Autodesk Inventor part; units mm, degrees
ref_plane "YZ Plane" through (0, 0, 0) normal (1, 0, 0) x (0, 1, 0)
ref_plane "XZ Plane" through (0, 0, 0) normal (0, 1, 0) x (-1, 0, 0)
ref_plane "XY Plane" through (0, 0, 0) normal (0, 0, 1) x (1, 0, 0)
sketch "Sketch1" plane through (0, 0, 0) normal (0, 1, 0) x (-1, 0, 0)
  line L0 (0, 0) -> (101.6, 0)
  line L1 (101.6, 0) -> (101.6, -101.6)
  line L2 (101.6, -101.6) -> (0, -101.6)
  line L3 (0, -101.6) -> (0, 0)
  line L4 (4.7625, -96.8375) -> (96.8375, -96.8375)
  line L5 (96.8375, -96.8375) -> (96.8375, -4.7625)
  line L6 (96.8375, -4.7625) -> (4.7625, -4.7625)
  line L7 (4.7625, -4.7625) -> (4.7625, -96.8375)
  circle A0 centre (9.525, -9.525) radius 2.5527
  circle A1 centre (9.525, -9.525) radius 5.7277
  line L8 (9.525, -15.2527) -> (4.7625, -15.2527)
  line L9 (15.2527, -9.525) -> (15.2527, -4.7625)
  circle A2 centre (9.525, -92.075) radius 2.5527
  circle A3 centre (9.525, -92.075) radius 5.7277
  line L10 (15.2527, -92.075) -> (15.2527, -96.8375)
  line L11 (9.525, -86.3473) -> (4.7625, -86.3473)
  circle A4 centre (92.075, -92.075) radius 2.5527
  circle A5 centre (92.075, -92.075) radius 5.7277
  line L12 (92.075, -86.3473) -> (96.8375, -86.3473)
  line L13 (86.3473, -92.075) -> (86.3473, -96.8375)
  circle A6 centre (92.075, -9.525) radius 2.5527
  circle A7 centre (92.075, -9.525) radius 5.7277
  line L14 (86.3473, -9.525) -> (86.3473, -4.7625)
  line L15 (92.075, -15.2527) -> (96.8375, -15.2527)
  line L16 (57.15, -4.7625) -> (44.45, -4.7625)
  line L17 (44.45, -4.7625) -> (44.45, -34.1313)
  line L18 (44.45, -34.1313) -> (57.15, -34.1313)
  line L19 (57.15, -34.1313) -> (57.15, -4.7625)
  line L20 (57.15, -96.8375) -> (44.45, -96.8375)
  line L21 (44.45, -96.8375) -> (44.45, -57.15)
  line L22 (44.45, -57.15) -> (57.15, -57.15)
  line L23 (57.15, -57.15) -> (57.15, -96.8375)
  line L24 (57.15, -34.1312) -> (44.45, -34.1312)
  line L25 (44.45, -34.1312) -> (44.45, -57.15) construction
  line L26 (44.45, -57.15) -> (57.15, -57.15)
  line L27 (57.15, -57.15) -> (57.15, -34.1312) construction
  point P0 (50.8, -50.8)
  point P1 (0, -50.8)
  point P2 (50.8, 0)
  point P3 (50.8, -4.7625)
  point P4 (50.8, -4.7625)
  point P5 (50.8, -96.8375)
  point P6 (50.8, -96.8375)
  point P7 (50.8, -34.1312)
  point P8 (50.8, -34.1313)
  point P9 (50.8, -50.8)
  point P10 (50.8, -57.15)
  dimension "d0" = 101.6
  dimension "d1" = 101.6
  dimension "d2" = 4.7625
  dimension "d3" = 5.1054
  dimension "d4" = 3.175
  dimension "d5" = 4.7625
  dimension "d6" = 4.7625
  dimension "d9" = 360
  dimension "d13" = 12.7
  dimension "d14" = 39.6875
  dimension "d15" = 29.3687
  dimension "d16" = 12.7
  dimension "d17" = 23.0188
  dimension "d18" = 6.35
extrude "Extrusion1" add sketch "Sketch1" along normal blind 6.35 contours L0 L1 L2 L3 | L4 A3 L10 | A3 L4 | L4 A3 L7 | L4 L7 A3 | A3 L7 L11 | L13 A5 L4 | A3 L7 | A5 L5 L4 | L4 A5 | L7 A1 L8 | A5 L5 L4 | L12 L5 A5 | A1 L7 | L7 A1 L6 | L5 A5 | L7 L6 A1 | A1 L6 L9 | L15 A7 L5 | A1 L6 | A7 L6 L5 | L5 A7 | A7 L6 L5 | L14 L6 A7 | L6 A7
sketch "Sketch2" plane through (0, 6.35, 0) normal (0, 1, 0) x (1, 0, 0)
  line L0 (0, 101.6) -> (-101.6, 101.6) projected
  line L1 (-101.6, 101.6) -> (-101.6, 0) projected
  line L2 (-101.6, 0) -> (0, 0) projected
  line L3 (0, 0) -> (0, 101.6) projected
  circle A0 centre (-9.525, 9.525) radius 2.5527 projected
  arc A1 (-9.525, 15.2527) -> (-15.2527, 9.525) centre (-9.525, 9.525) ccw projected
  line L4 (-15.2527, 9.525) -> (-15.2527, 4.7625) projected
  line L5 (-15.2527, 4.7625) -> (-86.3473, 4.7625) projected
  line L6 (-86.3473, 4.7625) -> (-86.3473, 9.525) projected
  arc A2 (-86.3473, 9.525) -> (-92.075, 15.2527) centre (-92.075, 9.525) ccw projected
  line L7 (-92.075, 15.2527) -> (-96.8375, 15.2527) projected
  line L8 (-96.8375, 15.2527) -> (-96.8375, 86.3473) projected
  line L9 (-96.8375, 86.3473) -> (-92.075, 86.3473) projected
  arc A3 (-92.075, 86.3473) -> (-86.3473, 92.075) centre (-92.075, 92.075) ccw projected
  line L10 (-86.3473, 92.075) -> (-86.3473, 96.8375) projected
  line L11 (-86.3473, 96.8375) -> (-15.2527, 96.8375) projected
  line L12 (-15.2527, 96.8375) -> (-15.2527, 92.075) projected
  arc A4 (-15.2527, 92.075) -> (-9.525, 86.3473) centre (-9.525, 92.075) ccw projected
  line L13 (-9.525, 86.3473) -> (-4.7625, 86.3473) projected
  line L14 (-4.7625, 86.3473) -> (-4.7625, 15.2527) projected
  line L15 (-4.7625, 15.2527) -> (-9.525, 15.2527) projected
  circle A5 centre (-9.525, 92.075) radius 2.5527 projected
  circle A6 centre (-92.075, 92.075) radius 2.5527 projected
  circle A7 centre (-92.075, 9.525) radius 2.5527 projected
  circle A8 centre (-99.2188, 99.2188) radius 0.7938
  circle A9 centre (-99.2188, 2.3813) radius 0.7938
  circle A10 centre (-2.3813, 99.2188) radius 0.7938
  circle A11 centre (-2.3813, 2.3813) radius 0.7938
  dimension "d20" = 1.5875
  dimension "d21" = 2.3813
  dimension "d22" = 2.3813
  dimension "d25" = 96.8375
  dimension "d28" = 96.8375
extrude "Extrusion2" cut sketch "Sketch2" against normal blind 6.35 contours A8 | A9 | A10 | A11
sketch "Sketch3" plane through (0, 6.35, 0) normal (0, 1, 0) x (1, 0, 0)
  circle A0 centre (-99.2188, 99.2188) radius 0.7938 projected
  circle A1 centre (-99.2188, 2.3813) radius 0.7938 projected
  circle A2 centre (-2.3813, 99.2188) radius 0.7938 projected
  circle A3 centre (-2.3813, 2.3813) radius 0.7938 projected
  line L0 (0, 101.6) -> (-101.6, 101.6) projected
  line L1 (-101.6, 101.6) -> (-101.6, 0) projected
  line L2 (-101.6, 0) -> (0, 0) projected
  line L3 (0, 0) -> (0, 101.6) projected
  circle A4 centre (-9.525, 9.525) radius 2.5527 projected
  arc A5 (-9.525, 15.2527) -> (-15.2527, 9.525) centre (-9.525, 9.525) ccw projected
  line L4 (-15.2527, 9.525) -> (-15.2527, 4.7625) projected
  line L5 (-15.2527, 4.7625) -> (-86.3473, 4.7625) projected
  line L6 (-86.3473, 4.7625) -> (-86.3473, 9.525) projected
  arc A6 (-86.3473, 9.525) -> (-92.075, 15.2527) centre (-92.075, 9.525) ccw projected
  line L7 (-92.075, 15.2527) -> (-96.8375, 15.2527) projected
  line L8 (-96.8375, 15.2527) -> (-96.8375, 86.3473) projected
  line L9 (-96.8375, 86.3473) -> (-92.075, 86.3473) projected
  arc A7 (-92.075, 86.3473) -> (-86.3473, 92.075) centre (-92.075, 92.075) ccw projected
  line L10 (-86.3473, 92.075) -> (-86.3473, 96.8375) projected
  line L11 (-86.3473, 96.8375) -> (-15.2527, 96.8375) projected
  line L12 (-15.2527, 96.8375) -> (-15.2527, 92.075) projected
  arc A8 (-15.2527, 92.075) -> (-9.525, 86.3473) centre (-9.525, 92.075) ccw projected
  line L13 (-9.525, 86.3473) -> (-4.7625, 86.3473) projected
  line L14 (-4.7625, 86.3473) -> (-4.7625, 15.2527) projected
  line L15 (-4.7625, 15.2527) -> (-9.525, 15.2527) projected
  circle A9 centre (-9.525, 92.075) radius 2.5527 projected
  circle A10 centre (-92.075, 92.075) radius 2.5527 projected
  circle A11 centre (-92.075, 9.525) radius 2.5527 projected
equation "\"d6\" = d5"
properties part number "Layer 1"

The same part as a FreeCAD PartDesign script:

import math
import FreeCAD as App
import Part
import Sketcher
Q = App.Units.Quantity

doc = App.newDocument("Part")
body = doc.addObject("PartDesign::Body", "Body")

sketch1 = body.newObject("Sketcher::SketchObject", "Sketch")
sketch1.AttachmentSupport = (doc.getObject("XZ_Plane"), [""])
sketch1.MapMode = "FlatFace"
sketch1.addGeometry([
    Part.LineSegment(App.Vector(-101.6, 0, 0), App.Vector(0, 0, 0)),
    Part.LineSegment(App.Vector(0, 0, 0), App.Vector(0, -101.6, 0)),
    Part.LineSegment(App.Vector(0, -101.6, 0), App.Vector(-101.6, -101.6, 0)),
    Part.LineSegment(App.Vector(-101.6, -101.6, 0), App.Vector(-101.6, 0, 0)),
    Part.LineSegment(App.Vector(-15.3, -96.8, 0), App.Vector(-15.3, -92.1, 0)),
    Part.ArcOfCircle(Part.Circle(App.Vector(-9.5, -92.1, 0), App.Vector(0, 0, 1), 5.7), math.radians(90), math.radians(180)),
    Part.LineSegment(App.Vector(-9.5, -86.3, 0), App.Vector(-4.8, -86.3, 0)),
    Part.LineSegment(App.Vector(-4.8, -86.3, 0), App.Vector(-4.8, -15.3, 0)),
    Part.LineSegment(App.Vector(-4.8, -15.3, 0), App.Vector(-9.5, -15.3, 0)),
    Part.ArcOfCircle(Part.Circle(App.Vector(-9.5, -9.5, 0), App.Vector(0, 0, 1), 5.7), math.radians(180), math.radians(270)),
    Part.LineSegment(App.Vector(-15.3, -9.5, 0), App.Vector(-15.3, -4.8, 0)),
    Part.LineSegment(App.Vector(-15.3, -4.8, 0), App.Vector(-86.3, -4.8, 0)),
    Part.LineSegment(App.Vector(-86.3, -4.8, 0), App.Vector(-86.3, -9.5, 0)),
    Part.ArcOfCircle(Part.Circle(App.Vector(-92.1, -9.5, 0), App.Vector(0, 0, 1), 5.7), math.radians(-90), math.radians(0)),
    Part.LineSegment(App.Vector(-92.1, -15.3, 0), App.Vector(-96.8, -15.3, 0)),
    Part.LineSegment(App.Vector(-96.8, -15.3, 0), App.Vector(-96.8, -86.3, 0)),
    Part.LineSegment(App.Vector(-96.8, -86.3, 0), App.Vector(-92.1, -86.3, 0)),
    Part.ArcOfCircle(Part.Circle(App.Vector(-92.1, -92.1, 0), App.Vector(0, 0, 1), 5.7), math.radians(0), math.radians(90)),
    Part.LineSegment(App.Vector(-86.3, -92.1, 0), App.Vector(-86.3, -96.8, 0)),
    Part.LineSegment(App.Vector(-86.3, -96.8, 0), App.Vector(-15.3, -96.8, 0)),
    Part.Circle(App.Vector(-92.1, -92.1, 0), App.Vector(0, 0, 1), 2.6),
    Part.Circle(App.Vector(-92.1, -9.5, 0), App.Vector(0, 0, 1), 2.6),
    Part.Circle(App.Vector(-9.5, -9.5, 0), App.Vector(0, 0, 1), 2.6),
    Part.Circle(App.Vector(-9.5, -92.1, 0), App.Vector(0, 0, 1), 2.6),
], False)
sketch1.addConstraint([
    Sketcher.Constraint("Coincident", 0, 2, 1, 1),
    Sketcher.Constraint("Coincident", 1, 2, 2, 1),
    Sketcher.Constraint("Coincident", 2, 2, 3, 1),
    Sketcher.Constraint("Coincident", 3, 2, 0, 1),
    Sketcher.Constraint("Tangent", 4, 2, 5, 2),
    Sketcher.Constraint("Tangent", 5, 1, 6, 1),
    Sketcher.Constraint("Coincident", 6, 2, 7, 1),
    Sketcher.Constraint("Coincident", 7, 2, 8, 1),
    Sketcher.Constraint("Tangent", 8, 2, 9, 2),
    Sketcher.Constraint("Tangent", 9, 1, 10, 1),
    Sketcher.Constraint("Coincident", 10, 2, 11, 1),
    Sketcher.Constraint("Coincident", 11, 2, 12, 1),
    Sketcher.Constraint("Tangent", 12, 2, 13, 2),
    Sketcher.Constraint("Tangent", 13, 1, 14, 1),
    Sketcher.Constraint("Coincident", 14, 2, 15, 1),
    Sketcher.Constraint("Coincident", 15, 2, 16, 1),
    Sketcher.Constraint("Tangent", 16, 2, 17, 2),
    Sketcher.Constraint("Tangent", 17, 1, 18, 1),
    Sketcher.Constraint("Coincident", 18, 2, 19, 1),
    Sketcher.Constraint("Coincident", 19, 2, 4, 1),
    Sketcher.Constraint("Horizontal", 0),
    Sketcher.Constraint("Vertical", 1),
    Sketcher.Constraint("Horizontal", 2),
    Sketcher.Constraint("Vertical", 3),
    Sketcher.Constraint("Vertical", 4),
    Sketcher.Constraint("Horizontal", 6),
    Sketcher.Constraint("Vertical", 7),
    Sketcher.Constraint("Horizontal", 8),
    Sketcher.Constraint("Vertical", 10),
    Sketcher.Constraint("Horizontal", 11),
    Sketcher.Constraint("Vertical", 12),
    Sketcher.Constraint("Horizontal", 14),
    Sketcher.Constraint("Vertical", 15),
    Sketcher.Constraint("Horizontal", 16),
    Sketcher.Constraint("Vertical", 18),
    Sketcher.Constraint("Horizontal", 19),
    Sketcher.Constraint("Coincident", 0, 2, -1, 1),
    Sketcher.Constraint("Coincident", 20, 3, 17, 3),
    Sketcher.Constraint("Coincident", 21, 3, 13, 3),
    Sketcher.Constraint("Coincident", 22, 3, 9, 3),
    Sketcher.Constraint("Coincident", 23, 3, 5, 3),
    Sketcher.Constraint("Equal", 5, 9),
    Sketcher.Constraint("Equal", 9, 13),
    Sketcher.Constraint("Equal", 13, 17),
    Sketcher.Constraint("Equal", 20, 21),
    Sketcher.Constraint("Equal", 21, 22),
    Sketcher.Constraint("Equal", 22, 23),
    Sketcher.Constraint("Horizontal", 9, 3, 13, 3),
    Sketcher.Constraint("Horizontal", 5, 3, 17, 3),
    Sketcher.Constraint("Vertical", 5, 3, 9, 3),
    Sketcher.Constraint("Vertical", 13, 3, 17, 3),
    Sketcher.Constraint("Equal", 8, 14),
    Sketcher.Constraint("Equal", 2, 1),
    Sketcher.Constraint("Equal", 16, 4),
    Sketcher.Constraint("Equal", 19, 7),
    Sketcher.Constraint("Equal", 4, 10),
    Sketcher.Constraint("DistanceX", 0, 1, 0, 2, Q("4 in")),
    Sketcher.Constraint("Diameter", 20, Q("0.201 in")),
    Sketcher.Constraint("DistanceX", 6, 1, 6, 2, Q("0.1875 in")),
    Sketcher.Constraint("DistanceX", 6, 2, -1, 1, Q("0.1875 in")),
    Sketcher.Constraint("DistanceY", 10, 2, -1, 1, Q("0.1875 in")),
    Sketcher.Constraint("DistanceX", 2, 2, 15, 2, Q("0.1875 in")),
    Sketcher.Constraint("Radius", 5, Q("0.2255 in")),
])
pad1 = body.newObject("PartDesign::Pad", "Pad")
pad1.Profile = sketch1
pad1.Length = Q("0.25 in")
pad1.Reversed = True

sketch2 = body.newObject("Sketcher::SketchObject", "Sketch001")
sketch2.AttachmentSupport = (doc.getObject("XZ_Plane"), [""])
sketch2.MapMode = "FlatFace"
sketch2.AttachmentOffset = App.Placement(App.Vector(0, 0, -0.25 * 25.4), App.Rotation())
sketch2.addGeometry([
    Part.Circle(App.Vector(-99.2, -99.2, 0), App.Vector(0, 0, 1), 0.8),
    Part.Circle(App.Vector(-99.2, -2.4, 0), App.Vector(0, 0, 1), 0.8),
    Part.Circle(App.Vector(-2.4, -99.2, 0), App.Vector(0, 0, 1), 0.8),
    Part.Circle(App.Vector(-2.4, -2.4, 0), App.Vector(0, 0, 1), 0.8),
], False)
sketch2.addConstraint([
    Sketcher.Constraint("Equal", 0, 1),
    Sketcher.Constraint("Equal", 1, 2),
    Sketcher.Constraint("Equal", 2, 3),
    Sketcher.Constraint("Horizontal", 0, 3, 2, 3),
    Sketcher.Constraint("Horizontal", 1, 3, 3, 3),
    Sketcher.Constraint("Vertical", 0, 3, 1, 3),
    Sketcher.Constraint("Vertical", 2, 3, 3, 3),
    Sketcher.Constraint("Diameter", 0, Q("0.0625 in")),
    Sketcher.Constraint("DistanceY", 1, 3, -1, 1, Q("0.093752 in")),
    Sketcher.Constraint("DistanceX", 2, 3, -1, 1, Q("0.093752 in")),
    Sketcher.Constraint("DistanceY", 0, 3, 1, 3, Q("3.8125 in")),
    Sketcher.Constraint("DistanceX", 0, 3, 2, 3, Q("3.8125 in")),
])
pocket1 = body.newObject("PartDesign::Pocket", "Pocket")
pocket1.Profile = sketch2
pocket1.Length = Q("0.25 in")
pocket1.Reversed = True

doc.recompute()
